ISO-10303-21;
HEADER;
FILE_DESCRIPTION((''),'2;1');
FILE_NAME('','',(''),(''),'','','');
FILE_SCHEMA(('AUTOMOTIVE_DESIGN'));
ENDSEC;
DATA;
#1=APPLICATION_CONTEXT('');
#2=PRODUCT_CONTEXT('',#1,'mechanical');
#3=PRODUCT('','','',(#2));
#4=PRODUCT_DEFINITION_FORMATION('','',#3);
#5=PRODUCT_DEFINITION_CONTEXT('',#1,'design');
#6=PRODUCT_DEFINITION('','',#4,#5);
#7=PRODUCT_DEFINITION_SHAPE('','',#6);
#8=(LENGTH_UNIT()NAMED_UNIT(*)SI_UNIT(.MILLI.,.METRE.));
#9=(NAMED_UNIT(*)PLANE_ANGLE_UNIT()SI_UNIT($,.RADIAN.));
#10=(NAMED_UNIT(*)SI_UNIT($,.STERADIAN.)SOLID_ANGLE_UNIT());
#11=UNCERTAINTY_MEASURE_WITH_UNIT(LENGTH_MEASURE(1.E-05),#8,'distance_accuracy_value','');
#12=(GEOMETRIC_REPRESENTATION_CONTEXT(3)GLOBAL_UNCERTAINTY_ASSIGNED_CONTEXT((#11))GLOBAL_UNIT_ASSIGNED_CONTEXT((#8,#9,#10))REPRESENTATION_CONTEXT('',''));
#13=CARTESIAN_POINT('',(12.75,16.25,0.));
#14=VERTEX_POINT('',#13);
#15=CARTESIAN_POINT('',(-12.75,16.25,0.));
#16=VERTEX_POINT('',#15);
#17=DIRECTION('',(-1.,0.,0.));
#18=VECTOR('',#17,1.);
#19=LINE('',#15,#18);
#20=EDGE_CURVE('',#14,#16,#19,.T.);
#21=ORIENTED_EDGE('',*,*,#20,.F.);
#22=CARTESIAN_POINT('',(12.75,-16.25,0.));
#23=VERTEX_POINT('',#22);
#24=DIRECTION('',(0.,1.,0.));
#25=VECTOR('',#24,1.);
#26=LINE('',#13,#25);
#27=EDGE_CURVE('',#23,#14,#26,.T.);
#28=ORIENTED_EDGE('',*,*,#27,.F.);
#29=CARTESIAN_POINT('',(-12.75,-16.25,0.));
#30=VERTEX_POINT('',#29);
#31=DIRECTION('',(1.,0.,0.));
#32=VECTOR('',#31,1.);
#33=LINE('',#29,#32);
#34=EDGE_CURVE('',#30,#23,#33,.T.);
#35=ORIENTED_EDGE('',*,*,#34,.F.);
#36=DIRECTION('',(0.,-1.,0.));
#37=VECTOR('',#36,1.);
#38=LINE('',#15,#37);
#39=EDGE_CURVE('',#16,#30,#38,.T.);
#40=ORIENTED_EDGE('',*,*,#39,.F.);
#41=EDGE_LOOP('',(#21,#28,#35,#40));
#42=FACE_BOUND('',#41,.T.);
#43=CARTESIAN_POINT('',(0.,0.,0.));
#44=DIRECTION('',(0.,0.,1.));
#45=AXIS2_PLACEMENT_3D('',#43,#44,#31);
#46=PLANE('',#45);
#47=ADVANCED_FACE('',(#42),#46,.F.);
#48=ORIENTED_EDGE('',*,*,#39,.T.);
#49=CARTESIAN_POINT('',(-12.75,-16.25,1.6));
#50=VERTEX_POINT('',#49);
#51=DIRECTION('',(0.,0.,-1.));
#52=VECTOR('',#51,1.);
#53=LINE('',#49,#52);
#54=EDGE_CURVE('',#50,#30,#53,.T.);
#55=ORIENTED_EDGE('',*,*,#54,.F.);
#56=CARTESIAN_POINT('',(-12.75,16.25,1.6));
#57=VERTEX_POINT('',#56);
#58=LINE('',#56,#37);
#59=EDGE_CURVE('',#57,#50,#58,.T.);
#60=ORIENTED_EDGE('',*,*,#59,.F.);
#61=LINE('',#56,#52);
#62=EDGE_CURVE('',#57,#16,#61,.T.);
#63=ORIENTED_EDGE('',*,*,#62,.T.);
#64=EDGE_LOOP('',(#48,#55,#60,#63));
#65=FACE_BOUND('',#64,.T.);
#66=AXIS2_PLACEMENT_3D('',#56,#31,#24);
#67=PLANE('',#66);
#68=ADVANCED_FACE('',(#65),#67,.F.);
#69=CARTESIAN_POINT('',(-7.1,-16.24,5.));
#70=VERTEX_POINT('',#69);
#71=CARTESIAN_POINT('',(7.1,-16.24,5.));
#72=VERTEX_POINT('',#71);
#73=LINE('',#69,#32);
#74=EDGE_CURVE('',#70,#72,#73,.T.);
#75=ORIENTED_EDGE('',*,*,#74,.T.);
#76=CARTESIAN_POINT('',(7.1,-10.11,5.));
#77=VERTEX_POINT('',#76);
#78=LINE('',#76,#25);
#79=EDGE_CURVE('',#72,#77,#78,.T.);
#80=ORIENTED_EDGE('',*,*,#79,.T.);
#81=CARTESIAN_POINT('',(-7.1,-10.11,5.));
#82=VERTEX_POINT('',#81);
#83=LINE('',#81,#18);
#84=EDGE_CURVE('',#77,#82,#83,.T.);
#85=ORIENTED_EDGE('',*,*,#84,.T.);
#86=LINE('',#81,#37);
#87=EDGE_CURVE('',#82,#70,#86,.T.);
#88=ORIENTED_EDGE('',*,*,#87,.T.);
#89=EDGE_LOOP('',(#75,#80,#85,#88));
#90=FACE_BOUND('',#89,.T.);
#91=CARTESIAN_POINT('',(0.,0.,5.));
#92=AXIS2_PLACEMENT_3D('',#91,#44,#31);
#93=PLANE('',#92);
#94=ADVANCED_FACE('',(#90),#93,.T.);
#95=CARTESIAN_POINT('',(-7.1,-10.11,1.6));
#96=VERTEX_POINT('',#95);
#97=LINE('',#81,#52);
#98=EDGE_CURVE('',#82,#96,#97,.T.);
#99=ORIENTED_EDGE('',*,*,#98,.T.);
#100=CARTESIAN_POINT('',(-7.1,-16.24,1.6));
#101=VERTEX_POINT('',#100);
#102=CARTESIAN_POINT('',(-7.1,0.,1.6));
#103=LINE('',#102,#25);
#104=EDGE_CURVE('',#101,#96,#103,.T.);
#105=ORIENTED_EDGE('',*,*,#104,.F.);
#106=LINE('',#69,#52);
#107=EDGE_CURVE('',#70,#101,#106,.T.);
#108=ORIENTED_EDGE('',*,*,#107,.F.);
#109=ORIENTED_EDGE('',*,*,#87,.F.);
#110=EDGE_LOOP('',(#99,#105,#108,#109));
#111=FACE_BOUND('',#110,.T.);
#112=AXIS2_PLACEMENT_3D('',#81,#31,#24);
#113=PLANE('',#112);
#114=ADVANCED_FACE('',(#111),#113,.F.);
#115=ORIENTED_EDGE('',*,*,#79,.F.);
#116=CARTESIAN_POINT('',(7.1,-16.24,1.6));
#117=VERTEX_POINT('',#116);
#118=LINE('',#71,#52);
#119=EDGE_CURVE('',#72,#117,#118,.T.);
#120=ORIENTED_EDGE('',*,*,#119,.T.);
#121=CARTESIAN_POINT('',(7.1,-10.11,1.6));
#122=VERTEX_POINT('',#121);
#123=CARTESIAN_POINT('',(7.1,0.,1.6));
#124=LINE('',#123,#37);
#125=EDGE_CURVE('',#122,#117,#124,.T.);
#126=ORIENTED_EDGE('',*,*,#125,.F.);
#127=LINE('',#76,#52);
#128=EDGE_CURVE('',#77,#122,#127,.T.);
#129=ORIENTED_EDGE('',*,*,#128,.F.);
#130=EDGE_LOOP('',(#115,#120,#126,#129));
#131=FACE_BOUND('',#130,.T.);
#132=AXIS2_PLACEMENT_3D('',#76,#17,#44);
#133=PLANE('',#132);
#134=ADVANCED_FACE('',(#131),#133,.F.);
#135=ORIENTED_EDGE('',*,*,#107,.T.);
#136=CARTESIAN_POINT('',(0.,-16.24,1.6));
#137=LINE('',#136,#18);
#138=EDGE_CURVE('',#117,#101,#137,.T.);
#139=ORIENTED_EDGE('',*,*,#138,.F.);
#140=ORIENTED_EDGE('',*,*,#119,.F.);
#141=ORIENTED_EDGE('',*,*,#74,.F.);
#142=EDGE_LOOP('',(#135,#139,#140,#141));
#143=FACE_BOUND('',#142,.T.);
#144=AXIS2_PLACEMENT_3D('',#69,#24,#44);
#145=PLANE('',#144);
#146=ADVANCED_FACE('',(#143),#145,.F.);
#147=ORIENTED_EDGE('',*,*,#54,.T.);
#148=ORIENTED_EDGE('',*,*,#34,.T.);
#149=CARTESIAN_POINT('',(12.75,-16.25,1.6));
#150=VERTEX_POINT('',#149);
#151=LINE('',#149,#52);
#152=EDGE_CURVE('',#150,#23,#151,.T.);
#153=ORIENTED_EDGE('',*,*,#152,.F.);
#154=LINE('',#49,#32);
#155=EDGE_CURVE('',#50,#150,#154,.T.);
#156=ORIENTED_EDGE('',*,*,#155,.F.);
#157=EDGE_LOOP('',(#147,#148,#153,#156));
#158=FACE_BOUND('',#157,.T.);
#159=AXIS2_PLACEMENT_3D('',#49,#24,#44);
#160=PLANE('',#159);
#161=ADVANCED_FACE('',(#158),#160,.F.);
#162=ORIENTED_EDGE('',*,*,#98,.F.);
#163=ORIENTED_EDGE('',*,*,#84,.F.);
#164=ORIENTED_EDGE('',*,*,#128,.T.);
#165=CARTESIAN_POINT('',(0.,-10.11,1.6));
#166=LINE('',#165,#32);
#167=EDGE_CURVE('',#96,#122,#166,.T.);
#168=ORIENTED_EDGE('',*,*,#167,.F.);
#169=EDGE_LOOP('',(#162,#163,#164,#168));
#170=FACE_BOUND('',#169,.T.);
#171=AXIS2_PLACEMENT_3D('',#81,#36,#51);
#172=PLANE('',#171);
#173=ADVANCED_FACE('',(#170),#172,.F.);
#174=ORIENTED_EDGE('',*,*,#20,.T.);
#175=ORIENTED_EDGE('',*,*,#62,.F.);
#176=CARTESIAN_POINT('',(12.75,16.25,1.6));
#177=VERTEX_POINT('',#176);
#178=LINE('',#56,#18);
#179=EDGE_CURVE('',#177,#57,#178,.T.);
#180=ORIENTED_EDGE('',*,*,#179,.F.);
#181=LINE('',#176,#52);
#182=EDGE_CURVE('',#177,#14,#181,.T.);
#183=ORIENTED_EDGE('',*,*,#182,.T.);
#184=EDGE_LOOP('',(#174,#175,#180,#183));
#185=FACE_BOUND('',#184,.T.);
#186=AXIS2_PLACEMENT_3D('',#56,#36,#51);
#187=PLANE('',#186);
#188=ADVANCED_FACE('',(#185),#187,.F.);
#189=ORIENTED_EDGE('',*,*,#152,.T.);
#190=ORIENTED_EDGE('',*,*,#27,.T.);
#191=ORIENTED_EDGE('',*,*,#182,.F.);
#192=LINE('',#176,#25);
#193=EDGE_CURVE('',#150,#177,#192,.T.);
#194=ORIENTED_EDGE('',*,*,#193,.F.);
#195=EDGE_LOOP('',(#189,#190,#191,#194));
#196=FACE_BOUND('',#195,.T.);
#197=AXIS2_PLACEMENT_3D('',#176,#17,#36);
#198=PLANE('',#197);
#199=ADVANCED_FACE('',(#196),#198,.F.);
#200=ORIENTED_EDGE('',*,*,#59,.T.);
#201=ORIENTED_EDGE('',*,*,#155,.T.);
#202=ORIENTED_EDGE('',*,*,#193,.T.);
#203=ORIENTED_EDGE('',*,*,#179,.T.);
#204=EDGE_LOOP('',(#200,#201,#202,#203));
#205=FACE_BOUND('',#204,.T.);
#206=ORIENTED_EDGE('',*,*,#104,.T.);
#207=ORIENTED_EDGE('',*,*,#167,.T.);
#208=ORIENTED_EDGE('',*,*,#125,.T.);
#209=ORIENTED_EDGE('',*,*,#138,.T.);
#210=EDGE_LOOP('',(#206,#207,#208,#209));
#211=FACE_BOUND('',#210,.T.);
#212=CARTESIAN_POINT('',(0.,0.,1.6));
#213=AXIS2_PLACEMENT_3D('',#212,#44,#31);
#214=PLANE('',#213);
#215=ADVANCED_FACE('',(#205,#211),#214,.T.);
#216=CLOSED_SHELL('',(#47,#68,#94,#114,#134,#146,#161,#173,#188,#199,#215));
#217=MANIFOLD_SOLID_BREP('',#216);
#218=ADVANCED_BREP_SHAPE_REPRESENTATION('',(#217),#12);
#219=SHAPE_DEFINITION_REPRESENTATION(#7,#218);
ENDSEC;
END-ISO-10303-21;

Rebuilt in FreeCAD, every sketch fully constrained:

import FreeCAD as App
import Part
import Sketcher
from FreeCAD import Vector
Q = App.Units.Quantity

doc = App.newDocument("Part")
body = doc.addObject("PartDesign::Body", "Body")

sketch1 = body.newObject("Sketcher::SketchObject", "Sketch")
sketch1.AttachmentSupport = (doc.getObject("XY_Plane"), [""])
sketch1.MapMode = "FlatFace"
sketch1.addGeometry(Part.LineSegment(Vector(-13, 16, 0), Vector(-13, -16, 0)), False)
sketch1.addGeometry(Part.LineSegment(Vector(-13, -16, 0), Vector(13, -16, 0)), False)
sketch1.addGeometry(Part.LineSegment(Vector(13, -16, 0), Vector(13, 16, 0)), False)
sketch1.addGeometry(Part.LineSegment(Vector(13, 16, 0), Vector(-13, 16, 0)), False)
sketch1.addConstraint(Sketcher.Constraint("Coincident", 0, 2, 1, 1))
sketch1.addConstraint(Sketcher.Constraint("Coincident", 1, 2, 2, 1))
sketch1.addConstraint(Sketcher.Constraint("Coincident", 2, 2, 3, 1))
sketch1.addConstraint(Sketcher.Constraint("Coincident", 3, 2, 0, 1))
sketch1.addConstraint(Sketcher.Constraint("Vertical", 0))
sketch1.addConstraint(Sketcher.Constraint("Horizontal", 1))
sketch1.addConstraint(Sketcher.Constraint("Vertical", 2))
sketch1.addConstraint(Sketcher.Constraint("Horizontal", 3))
sketch1.addConstraint(Sketcher.Constraint("Symmetric", 0, 2, 2, 2, -1, 1))
sketch1.addConstraint(Sketcher.Constraint("DistanceX", 1, 1, 1, 2, Q("25.5 mm")))
sketch1.addConstraint(Sketcher.Constraint("DistanceY", 0, 2, 0, 1, Q("32.5 mm")))
pad1 = body.newObject("PartDesign::Pad", "Pad")
pad1.Profile = sketch1
pad1.Length = 1.6

sketch2 = body.newObject("Sketcher::SketchObject", "Sketch001")
sketch2.AttachmentSupport = (doc.getObject("XY_Plane"), [""])
sketch2.MapMode = "FlatFace"
sketch2.addGeometry(Part.LineSegment(Vector(-7, -10, 0), Vector(-7, -16, 0)), False)
sketch2.addGeometry(Part.LineSegment(Vector(-7, -16, 0), Vector(7, -16, 0)), False)
sketch2.addGeometry(Part.LineSegment(Vector(7, -16, 0), Vector(7, -10, 0)), False)
sketch2.addGeometry(Part.LineSegment(Vector(7, -10, 0), Vector(-7, -10, 0)), False)
sketch2.addConstraint(Sketcher.Constraint("Coincident", 0, 2, 1, 1))
sketch2.addConstraint(Sketcher.Constraint("Coincident", 1, 2, 2, 1))
sketch2.addConstraint(Sketcher.Constraint("Coincident", 2, 2, 3, 1))
sketch2.addConstraint(Sketcher.Constraint("Coincident", 3, 2, 0, 1))
sketch2.addConstraint(Sketcher.Constraint("Vertical", 0))
sketch2.addConstraint(Sketcher.Constraint("Horizontal", 1))
sketch2.addConstraint(Sketcher.Constraint("Vertical", 2))
sketch2.addConstraint(Sketcher.Constraint("Horizontal", 3))
sketch2.addConstraint(Sketcher.Constraint("DistanceX", 1, 1, 1, 2, Q("14.2 mm")))
sketch2.addConstraint(Sketcher.Constraint("DistanceY", 0, 2, 0, 1, Q("6.13 mm")))
sketch2.addConstraint(Sketcher.Constraint("DistanceX", 0, 2, -1, 1, Q("7.1 mm")))
sketch2.addConstraint(Sketcher.Constraint("DistanceY", 0, 2, -1, 1, Q("16.24 mm")))
pad2 = body.newObject("PartDesign::Pad", "Pad001")
pad2.Profile = sketch2
pad2.Length = 5

doc.recompute()
